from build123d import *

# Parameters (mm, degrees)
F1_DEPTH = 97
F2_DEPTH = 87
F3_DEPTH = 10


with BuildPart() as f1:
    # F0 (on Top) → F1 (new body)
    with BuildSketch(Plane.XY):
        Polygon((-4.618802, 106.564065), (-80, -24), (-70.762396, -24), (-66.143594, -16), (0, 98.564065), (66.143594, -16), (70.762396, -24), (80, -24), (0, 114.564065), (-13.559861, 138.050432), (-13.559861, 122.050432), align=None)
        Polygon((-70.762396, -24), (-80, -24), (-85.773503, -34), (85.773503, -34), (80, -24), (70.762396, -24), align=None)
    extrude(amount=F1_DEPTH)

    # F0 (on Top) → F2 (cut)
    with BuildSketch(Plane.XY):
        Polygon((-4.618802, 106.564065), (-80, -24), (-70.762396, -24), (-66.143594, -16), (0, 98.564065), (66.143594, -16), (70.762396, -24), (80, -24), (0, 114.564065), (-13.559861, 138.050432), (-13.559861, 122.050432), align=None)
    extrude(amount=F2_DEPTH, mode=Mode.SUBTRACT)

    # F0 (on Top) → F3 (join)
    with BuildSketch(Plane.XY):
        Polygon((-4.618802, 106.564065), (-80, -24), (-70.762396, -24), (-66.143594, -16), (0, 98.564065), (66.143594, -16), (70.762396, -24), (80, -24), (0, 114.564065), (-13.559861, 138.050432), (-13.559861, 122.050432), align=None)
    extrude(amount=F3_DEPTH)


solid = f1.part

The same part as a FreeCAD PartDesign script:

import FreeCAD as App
import Part
import Sketcher
from FreeCAD import Vector
Q = App.Units.Quantity


def add_polygon(sketch, points):
    """Adds a closed chain of lines whose ends are joined by coincident constraints."""
    first, n = sketch.GeometryCount, len(points)
    for a, b in zip(points, points[1:] + points[:1]):
        sketch.addGeometry(Part.LineSegment(App.Vector(*a, 0), App.Vector(*b, 0)), False)
    for i in range(n):
        sketch.addConstraint(Sketcher.Constraint("Coincident", first + i, 2, first + (i + 1) % n, 1))

doc = App.newDocument("Part")
params = doc.addObject("Spreadsheet::Sheet", "Params")
for row, (alias, value) in enumerate([
    ("sketch1_height", "16 mm"),
    ("sketch1_length", "160 mm"),
    ("pad1_length", "97 mm"),
    ("sketch2_height", "16 mm"),
    ("sketch2_length", "160 mm"),
    ("pocket1_length", "87 mm"),
    ("sketch3_height", "16 mm"),
    ("sketch3_length", "160 mm"),
    ("pad2_length", "10 mm"),
], start=1):
    params.set(f"A{row}", alias)
    params.set(f"B{row}", "=" + value)
    params.setAlias(f"B{row}", alias)

body = doc.addObject("PartDesign::Body", "Body")

sketch1 = body.newObject("Sketcher::SketchObject", "Sketch")
sketch1.AttachmentSupport = (doc.getObject("XY_Plane"), [""])
sketch1.MapMode = "FlatFace"
add_polygon(sketch1, [(-5, 107), (-80, -24), (-86, -34), (86, -34), (80, -24), (0, 115), (-14, 138), (-14, 122)])
add_polygon(sketch1, [(-71, -24), (-66, -16), (0, 99), (66, -16), (71, -24)])
sketch1.addConstraint([
    Sketcher.Constraint("Horizontal", 2),
    Sketcher.Constraint("Vertical", 6),
    Sketcher.Constraint("Horizontal", 12),
    Sketcher.Constraint("Symmetric", 0, 2, 3, 2, -2),
    Sketcher.Constraint("Symmetric", 8, 2, 10, 2, -2),
    Sketcher.Constraint("PointOnObject", 4, 2, -2),
    Sketcher.Constraint("PointOnObject", 9, 2, -2),
    Sketcher.Constraint("Parallel", 0, 1),
    Sketcher.Constraint("Parallel", 3, 4),
    Sketcher.Constraint("Parallel", 4, 5),
    Sketcher.Constraint("Parallel", 5, 7),
    Sketcher.Constraint("Parallel", 1, 8),
    Sketcher.Constraint("Parallel", 8, 9),
    Sketcher.Constraint("Parallel", 7, 10),
    Sketcher.Constraint("Parallel", 10, 11),
    Sketcher.Constraint("Horizontal", 3, 2, 11, 2),
    Sketcher.Constraint("DistanceY", 6, 2, 6, 1, Q("16 mm")),
    Sketcher.Constraint("Angle", 0, Q("-120 deg")),
    Sketcher.Constraint("Distance", 4, Q("160 mm")),
    Sketcher.Constraint("DistanceY", 0, 2, -1, 1, Q("24 mm")),
    Sketcher.Constraint("DistanceY", 1, 2, -1, 1, Q("34 mm")),
    Sketcher.Constraint("DistanceY", 8, 2, -1, 1, Q("16 mm")),
    Sketcher.Constraint("DistanceY", 9, 2, 7, 2, Q("8 mm")),
    Sketcher.Constraint("Distance", 5, Q("27.119721 mm")),
])
sketch1.setExpression("Constraints[29]", "Params.sketch1_height")
sketch1.setExpression("Constraints[31]", "Params.sketch1_length")
pad1 = body.newObject("PartDesign::Pad", "Pad")
pad1.Profile = sketch1
pad1.setExpression("Length", "Params.pad1_length")

sketch2 = body.newObject("Sketcher::SketchObject", "Sketch001")
sketch2.AttachmentSupport = (doc.getObject("XY_Plane"), [""])
sketch2.MapMode = "FlatFace"
add_polygon(sketch2, [(-5, 107), (-80, -24), (-71, -24), (-66, -16), (0, 99), (66, -16), (71, -24), (80, -24), (0, 115), (-14, 138), (-14, 122)])
sketch2.addConstraint([
    Sketcher.Constraint("Horizontal", 1),
    Sketcher.Constraint("Horizontal", 6),
    Sketcher.Constraint("Vertical", 9),
    Sketcher.Constraint("Symmetric", 2, 2, 4, 2, -2),
    Sketcher.Constraint("Symmetric", 1, 2, 5, 2, -2),
    Sketcher.Constraint("PointOnObject", 3, 2, -2),
    Sketcher.Constraint("PointOnObject", 7, 2, -2),
    Sketcher.Constraint("Parallel", 0, 2),
    Sketcher.Constraint("Parallel", 2, 3),
    Sketcher.Constraint("Parallel", 5, 7),
    Sketcher.Constraint("Parallel", 7, 8),
    Sketcher.Constraint("Parallel", 8, 10),
    Sketcher.Constraint("Equal", 1, 6),
    Sketcher.Constraint("DistanceY", 9, 2, 9, 1, Q("16 mm")),
    Sketcher.Constraint("Angle", 0, Q("-120 deg")),
    Sketcher.Constraint("Distance", 7, Q("160 mm")),
    Sketcher.Constraint("DistanceY", 0, 2, -1, 1, Q("24 mm")),
    Sketcher.Constraint("DistanceY", 2, 2, -1, 1, Q("16 mm")),
    Sketcher.Constraint("DistanceY", 3, 2, 7, 2, Q("16 mm")),
    Sketcher.Constraint("Distance", 8, Q("27.119721 mm")),
])
sketch2.setExpression("Constraints[24]", "Params.sketch2_height")
sketch2.setExpression("Constraints[26]", "Params.sketch2_length")
pocket1 = body.newObject("PartDesign::Pocket", "Pocket")
pocket1.Profile = sketch2
pocket1.setExpression("Length", "Params.pocket1_length")
pocket1.Reversed = True

sketch3 = body.newObject("Sketcher::SketchObject", "Sketch002")
sketch3.AttachmentSupport = (doc.getObject("XY_Plane"), [""])
sketch3.MapMode = "FlatFace"
add_polygon(sketch3, [(-5, 107), (-80, -24), (-71, -24), (-66, -16), (0, 99), (66, -16), (71, -24), (80, -24), (0, 115), (-14, 138), (-14, 122)])
sketch3.addConstraint([
    Sketcher.Constraint("Horizontal", 1),
    Sketcher.Constraint("Horizontal", 6),
    Sketcher.Constraint("Vertical", 9),
    Sketcher.Constraint("Symmetric", 2, 2, 4, 2, -2),
    Sketcher.Constraint("Symmetric", 1, 2, 5, 2, -2),
    Sketcher.Constraint("PointOnObject", 3, 2, -2),
    Sketcher.Constraint("PointOnObject", 7, 2, -2),
    Sketcher.Constraint("Parallel", 0, 2),
    Sketcher.Constraint("Parallel", 2, 3),
    Sketcher.Constraint("Parallel", 5, 7),
    Sketcher.Constraint("Parallel", 7, 8),
    Sketcher.Constraint("Parallel", 8, 10),
    Sketcher.Constraint("Equal", 1, 6),
    Sketcher.Constraint("DistanceY", 9, 2, 9, 1, Q("16 mm")),
    Sketcher.Constraint("Angle", 0, Q("-120 deg")),
    Sketcher.Constraint("Distance", 7, Q("160 mm")),
    Sketcher.Constraint("DistanceY", 0, 2, -1, 1, Q("24 mm")),
    Sketcher.Constraint("DistanceY", 2, 2, -1, 1, Q("16 mm")),
    Sketcher.Constraint("DistanceY", 3, 2, 7, 2, Q("16 mm")),
    Sketcher.Constraint("Distance", 8, Q("27.119721 mm")),
])
sketch3.setExpression("Constraints[24]", "Params.sketch3_height")
sketch3.setExpression("Constraints[26]", "Params.sketch3_length")
pad2 = body.newObject("PartDesign::Pad", "Pad001")
pad2.Profile = sketch3
pad2.setExpression("Length", "Params.pad2_length")

doc.recompute()
